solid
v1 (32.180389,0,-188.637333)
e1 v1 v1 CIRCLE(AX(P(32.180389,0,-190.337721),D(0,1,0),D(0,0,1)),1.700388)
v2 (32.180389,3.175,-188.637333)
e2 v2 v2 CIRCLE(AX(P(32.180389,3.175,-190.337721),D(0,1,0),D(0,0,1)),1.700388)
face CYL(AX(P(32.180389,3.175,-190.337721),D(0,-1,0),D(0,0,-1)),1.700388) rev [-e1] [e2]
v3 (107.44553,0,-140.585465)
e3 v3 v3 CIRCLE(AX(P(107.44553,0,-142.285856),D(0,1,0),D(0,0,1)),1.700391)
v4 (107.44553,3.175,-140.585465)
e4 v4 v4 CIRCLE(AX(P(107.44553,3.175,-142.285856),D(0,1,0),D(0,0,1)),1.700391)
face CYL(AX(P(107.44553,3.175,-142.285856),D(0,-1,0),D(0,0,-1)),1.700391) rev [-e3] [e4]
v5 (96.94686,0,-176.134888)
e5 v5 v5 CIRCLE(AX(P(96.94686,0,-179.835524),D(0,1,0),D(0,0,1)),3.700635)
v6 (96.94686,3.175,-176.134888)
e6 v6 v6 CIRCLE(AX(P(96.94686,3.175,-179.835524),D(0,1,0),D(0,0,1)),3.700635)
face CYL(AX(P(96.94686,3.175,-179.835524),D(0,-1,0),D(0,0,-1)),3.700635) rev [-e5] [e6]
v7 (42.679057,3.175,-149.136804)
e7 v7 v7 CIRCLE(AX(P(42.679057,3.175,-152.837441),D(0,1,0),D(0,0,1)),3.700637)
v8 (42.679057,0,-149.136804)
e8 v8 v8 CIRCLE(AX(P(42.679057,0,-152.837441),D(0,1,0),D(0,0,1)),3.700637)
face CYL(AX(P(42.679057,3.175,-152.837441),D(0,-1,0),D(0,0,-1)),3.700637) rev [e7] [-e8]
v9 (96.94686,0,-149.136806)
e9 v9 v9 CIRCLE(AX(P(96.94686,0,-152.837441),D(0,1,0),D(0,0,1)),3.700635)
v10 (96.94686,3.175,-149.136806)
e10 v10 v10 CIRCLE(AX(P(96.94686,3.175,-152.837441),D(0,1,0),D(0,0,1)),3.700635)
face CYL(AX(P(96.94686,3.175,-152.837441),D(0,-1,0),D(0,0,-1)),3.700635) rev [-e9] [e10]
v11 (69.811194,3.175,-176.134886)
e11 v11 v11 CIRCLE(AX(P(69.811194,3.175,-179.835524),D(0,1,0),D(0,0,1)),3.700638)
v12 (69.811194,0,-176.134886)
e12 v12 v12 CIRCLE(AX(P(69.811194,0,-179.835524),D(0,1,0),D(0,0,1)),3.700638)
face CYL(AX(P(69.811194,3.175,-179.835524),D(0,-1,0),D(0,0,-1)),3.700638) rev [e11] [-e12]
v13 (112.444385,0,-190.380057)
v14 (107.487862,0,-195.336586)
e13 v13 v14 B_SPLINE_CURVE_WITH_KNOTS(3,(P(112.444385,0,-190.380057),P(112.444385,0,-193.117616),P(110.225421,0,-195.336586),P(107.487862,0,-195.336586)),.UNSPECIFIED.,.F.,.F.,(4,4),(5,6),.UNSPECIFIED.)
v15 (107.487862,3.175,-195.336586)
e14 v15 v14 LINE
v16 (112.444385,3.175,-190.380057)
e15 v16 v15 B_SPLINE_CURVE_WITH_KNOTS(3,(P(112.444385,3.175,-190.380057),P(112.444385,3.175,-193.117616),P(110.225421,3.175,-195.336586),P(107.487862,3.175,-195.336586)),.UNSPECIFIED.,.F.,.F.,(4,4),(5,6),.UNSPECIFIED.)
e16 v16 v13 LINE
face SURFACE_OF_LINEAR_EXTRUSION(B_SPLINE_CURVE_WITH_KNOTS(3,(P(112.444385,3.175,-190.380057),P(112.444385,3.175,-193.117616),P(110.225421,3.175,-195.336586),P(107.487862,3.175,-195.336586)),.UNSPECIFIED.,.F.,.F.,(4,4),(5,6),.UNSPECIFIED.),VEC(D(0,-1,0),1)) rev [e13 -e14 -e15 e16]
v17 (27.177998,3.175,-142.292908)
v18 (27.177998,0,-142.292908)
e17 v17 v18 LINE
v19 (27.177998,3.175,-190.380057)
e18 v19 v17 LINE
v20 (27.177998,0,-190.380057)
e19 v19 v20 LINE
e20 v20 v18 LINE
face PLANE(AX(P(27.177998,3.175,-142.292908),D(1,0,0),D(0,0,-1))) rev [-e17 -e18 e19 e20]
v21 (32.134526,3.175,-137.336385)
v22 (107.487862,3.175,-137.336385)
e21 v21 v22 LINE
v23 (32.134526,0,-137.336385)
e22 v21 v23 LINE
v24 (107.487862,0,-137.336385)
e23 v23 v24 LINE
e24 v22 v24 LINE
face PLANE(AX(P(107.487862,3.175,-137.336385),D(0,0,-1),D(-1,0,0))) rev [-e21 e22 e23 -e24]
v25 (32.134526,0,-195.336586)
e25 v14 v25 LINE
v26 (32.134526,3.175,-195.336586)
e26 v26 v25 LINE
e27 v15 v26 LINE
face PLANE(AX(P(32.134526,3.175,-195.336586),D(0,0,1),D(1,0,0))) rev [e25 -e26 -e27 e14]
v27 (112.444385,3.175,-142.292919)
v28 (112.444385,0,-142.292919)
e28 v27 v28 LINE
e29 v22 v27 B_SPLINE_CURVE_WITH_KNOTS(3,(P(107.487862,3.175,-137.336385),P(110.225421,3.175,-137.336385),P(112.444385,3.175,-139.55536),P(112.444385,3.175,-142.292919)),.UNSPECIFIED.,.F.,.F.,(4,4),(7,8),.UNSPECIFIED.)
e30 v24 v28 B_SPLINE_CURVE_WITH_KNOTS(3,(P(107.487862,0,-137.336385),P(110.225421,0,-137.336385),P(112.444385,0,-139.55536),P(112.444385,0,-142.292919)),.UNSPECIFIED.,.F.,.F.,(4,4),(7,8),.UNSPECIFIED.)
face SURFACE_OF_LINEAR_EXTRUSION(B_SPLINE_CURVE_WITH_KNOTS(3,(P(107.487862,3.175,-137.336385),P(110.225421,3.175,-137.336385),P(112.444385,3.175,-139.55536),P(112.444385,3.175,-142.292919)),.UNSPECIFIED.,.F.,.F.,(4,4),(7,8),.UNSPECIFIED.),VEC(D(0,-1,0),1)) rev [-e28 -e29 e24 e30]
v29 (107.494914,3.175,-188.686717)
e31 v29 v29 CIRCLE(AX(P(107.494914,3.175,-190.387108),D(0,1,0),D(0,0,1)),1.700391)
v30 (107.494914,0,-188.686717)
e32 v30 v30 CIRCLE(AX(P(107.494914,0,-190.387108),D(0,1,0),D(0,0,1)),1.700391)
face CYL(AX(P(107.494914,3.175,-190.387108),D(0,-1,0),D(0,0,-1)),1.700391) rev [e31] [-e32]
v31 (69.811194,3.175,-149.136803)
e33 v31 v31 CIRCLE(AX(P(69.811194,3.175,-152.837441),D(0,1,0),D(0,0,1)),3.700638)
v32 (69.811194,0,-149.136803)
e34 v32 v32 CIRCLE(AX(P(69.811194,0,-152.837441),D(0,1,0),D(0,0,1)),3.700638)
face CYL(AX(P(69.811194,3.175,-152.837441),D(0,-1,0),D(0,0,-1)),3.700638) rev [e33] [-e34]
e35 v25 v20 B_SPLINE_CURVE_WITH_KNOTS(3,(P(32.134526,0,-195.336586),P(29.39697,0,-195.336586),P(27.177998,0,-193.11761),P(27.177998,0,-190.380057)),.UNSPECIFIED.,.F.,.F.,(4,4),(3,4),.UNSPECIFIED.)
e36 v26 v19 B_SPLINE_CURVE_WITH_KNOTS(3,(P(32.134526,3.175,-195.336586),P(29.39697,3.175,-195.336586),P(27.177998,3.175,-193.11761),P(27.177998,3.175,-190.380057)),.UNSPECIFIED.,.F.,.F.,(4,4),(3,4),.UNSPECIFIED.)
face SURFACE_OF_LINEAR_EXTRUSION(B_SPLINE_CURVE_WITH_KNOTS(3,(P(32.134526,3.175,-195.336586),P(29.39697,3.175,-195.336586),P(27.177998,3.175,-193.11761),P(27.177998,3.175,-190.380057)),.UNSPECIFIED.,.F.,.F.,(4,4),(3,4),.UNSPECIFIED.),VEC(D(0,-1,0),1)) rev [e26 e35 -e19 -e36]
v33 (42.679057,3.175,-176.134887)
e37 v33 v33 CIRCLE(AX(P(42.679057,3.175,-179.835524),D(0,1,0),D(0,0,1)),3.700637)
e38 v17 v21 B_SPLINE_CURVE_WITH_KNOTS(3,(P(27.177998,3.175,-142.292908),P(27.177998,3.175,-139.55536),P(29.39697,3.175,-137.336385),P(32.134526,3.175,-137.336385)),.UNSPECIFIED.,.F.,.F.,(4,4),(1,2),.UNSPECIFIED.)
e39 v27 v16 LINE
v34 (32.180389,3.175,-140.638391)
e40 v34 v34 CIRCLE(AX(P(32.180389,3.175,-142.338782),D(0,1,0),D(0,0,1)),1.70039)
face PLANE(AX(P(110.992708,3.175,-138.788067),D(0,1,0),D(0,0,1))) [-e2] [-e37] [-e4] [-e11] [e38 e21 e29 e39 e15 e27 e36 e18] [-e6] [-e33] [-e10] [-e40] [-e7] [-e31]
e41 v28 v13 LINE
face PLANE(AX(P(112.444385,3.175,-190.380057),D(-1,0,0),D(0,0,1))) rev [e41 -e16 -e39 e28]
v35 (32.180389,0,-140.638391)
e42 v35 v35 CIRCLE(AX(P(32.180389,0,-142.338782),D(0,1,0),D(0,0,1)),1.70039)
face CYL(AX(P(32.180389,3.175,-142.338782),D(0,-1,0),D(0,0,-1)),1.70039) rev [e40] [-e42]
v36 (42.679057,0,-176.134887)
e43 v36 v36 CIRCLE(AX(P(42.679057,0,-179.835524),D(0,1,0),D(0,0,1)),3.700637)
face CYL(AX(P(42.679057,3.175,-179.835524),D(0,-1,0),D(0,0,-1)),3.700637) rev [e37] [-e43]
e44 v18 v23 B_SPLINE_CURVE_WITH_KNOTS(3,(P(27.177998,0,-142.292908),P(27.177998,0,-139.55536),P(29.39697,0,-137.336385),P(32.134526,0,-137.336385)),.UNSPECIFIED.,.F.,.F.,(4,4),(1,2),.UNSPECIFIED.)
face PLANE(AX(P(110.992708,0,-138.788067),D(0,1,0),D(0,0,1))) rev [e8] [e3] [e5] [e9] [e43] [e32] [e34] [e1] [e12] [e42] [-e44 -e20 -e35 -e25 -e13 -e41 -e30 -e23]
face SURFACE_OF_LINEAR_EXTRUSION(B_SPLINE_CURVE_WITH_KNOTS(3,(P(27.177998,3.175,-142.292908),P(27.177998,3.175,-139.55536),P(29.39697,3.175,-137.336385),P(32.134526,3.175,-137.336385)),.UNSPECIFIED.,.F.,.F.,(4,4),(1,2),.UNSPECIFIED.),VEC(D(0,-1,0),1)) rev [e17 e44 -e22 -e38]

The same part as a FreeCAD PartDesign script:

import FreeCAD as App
import Part
import Sketcher
Q = App.Units.Quantity

doc = App.newDocument("Part")
body = doc.addObject("PartDesign::Body", "Body")

sketch1 = doc.addObject("Sketcher::SketchObject", "Sketch")
body.addObject(sketch1)
sketch1.AttachmentSupport = (doc.XZ_Plane, [""])
sketch1.MapMode = "FlatFace"
sketch1.addGeometry(Part.LineSegment(App.Vector(32.134526, -137.336385, 0), App.Vector(107.487862, -137.336385, 0)), False)
sketch1.addGeometry(Part.BSplineCurve([App.Vector(112.444385, -142.292919, 0), App.Vector(112.444385, -139.55536, 0), App.Vector(110.225421, -137.336385, 0), App.Vector(107.487862, -137.336385, 0)], [4, 4], [7, 8], False, 3, [1, 1, 1, 1], False), False)
sketch1.addGeometry(Part.LineSegment(App.Vector(112.444385, -142.292919, 0), App.Vector(112.444385, -190.380057, 0)), False)
sketch1.addGeometry(Part.BSplineCurve([App.Vector(107.487862, -195.336586, 0), App.Vector(110.225421, -195.336586, 0), App.Vector(112.444385, -193.117616, 0), App.Vector(112.444385, -190.380057, 0)], [4, 4], [5, 6], False, 3, [1, 1, 1, 1], False), False)
sketch1.addGeometry(Part.LineSegment(App.Vector(107.487862, -195.336586, 0), App.Vector(32.134526, -195.336586, 0)), False)
sketch1.addGeometry(Part.BSplineCurve([App.Vector(27.177998, -190.380057, 0), App.Vector(27.177998, -193.11761, 0), App.Vector(29.39697, -195.336586, 0), App.Vector(32.134526, -195.336586, 0)], [4, 4], [3, 4], False, 3, [1, 1, 1, 1], False), False)
sketch1.addGeometry(Part.LineSegment(App.Vector(27.177998, -190.380057, 0), App.Vector(27.177998, -142.292908, 0)), False)
sketch1.addGeometry(Part.BSplineCurve([App.Vector(32.134526, -137.336385, 0), App.Vector(29.39697, -137.336385, 0), App.Vector(27.177998, -139.55536, 0), App.Vector(27.177998, -142.292908, 0)], [4, 4], [1, 2], False, 3, [1, 1, 1, 1], False), False)
sketch1.addGeometry(Part.Circle(App.Vector(107.44553, -142.285856, 0), App.Vector(0, 0, 1), 1.700391), False)
sketch1.addGeometry(Part.Circle(App.Vector(96.94686, -152.837441, 0), App.Vector(0, 0, 1), 3.700635), False)
sketch1.addGeometry(Part.Circle(App.Vector(69.811194, -152.837441, 0), App.Vector(0, 0, 1), 3.700638), False)
sketch1.addGeometry(Part.Circle(App.Vector(32.180389, -142.338782, 0), App.Vector(0, 0, 1), 1.70039), False)
sketch1.addGeometry(Part.Circle(App.Vector(42.679057, -152.837441, 0), App.Vector(0, 0, 1), 3.700637), False)
sketch1.addGeometry(Part.Circle(App.Vector(96.94686, -179.835524, 0), App.Vector(0, 0, 1), 3.700635), False)
sketch1.addGeometry(Part.Circle(App.Vector(107.494914, -190.387108, 0), App.Vector(0, 0, 1), 1.700391), False)
sketch1.addGeometry(Part.Circle(App.Vector(69.811194, -179.835524, 0), App.Vector(0, 0, 1), 3.700638), False)
sketch1.addGeometry(Part.Circle(App.Vector(42.679057, -179.835524, 0), App.Vector(0, 0, 1), 3.700637), False)
sketch1.addGeometry(Part.Circle(App.Vector(32.180389, -190.337721, 0), App.Vector(0, 0, 1), 1.700388), False)
sketch1.addConstraint(Sketcher.Constraint("Block", 1))
sketch1.addConstraint(Sketcher.Constraint("Block", 3))
sketch1.addConstraint(Sketcher.Constraint("Block", 5))
sketch1.addConstraint(Sketcher.Constraint("Block", 7))
sketch1.addConstraint(Sketcher.Constraint("Coincident", 0, 2, 1, 2))
sketch1.addConstraint(Sketcher.Constraint("Coincident", 1, 1, 2, 1))
sketch1.addConstraint(Sketcher.Constraint("Coincident", 2, 2, 3, 2))
sketch1.addConstraint(Sketcher.Constraint("Coincident", 3, 1, 4, 1))
sketch1.addConstraint(Sketcher.Constraint("Coincident", 4, 2, 5, 2))
sketch1.addConstraint(Sketcher.Constraint("Coincident", 5, 1, 6, 1))
sketch1.addConstraint(Sketcher.Constraint("Coincident", 6, 2, 7, 2))
sketch1.addConstraint(Sketcher.Constraint("Coincident", 7, 1, 0, 1))
sketch1.addConstraint(Sketcher.Constraint("Equal", 8, 11))
sketch1.addConstraint(Sketcher.Constraint("Equal", 10, 12))
sketch1.addConstraint(Sketcher.Constraint("Equal", 12, 13))
sketch1.addConstraint(Sketcher.Constraint("Equal", 11, 14))
sketch1.addConstraint(Sketcher.Constraint("Equal", 12, 15))
sketch1.addConstraint(Sketcher.Constraint("Equal", 15, 16))
sketch1.addConstraint(Sketcher.Constraint("Horizontal", 9, 3, 10, 3))
sketch1.addConstraint(Sketcher.Constraint("Horizontal", 10, 3, 12, 3))
sketch1.addConstraint(Sketcher.Constraint("Horizontal", 13, 3, 15, 3))
sketch1.addConstraint(Sketcher.Constraint("Horizontal", 15, 3, 16, 3))
sketch1.addConstraint(Sketcher.Constraint("Vertical", 9, 3, 13, 3))
sketch1.addConstraint(Sketcher.Constraint("Vertical", 10, 3, 15, 3))
sketch1.addConstraint(Sketcher.Constraint("Vertical", 12, 3, 16, 3))
sketch1.addConstraint(Sketcher.Constraint("Vertical", 11, 3, 17, 3))
sketch1.addConstraint(Sketcher.Constraint("Diameter", 9, Q("7.401271 mm")))
sketch1.addConstraint(Sketcher.Constraint("Diameter", 11, Q("3.40078 mm")))
sketch1.addConstraint(Sketcher.Constraint("Diameter", 13, Q("7.401271 mm")))
sketch1.addConstraint(Sketcher.Constraint("DistanceX", 9, 3, 0, 2, Q("0.4150001 in")))
sketch1.addConstraint(Sketcher.Constraint("Diameter", 17, Q("3.400776 mm")))
sketch1.addConstraint(Sketcher.Constraint("DistanceY", 2, 2, 8, 3, Q("48.0942 mm")))
sketch1.addConstraint(Sketcher.Constraint("DistanceX", -1, 1, 8, 3, Q("107.44553 mm")))
sketch1.addConstraint(Sketcher.Constraint("DistanceY", 9, 3, -1, 1, Q("152.837441 mm")))
sketch1.addConstraint(Sketcher.Constraint("DistanceX", -1, 1, 11, 3, Q("32.180389 mm")))
sketch1.addConstraint(Sketcher.Constraint("DistanceY", 11, 3, -1, 1, Q("142.338782 mm")))
sketch1.addConstraint(Sketcher.Constraint("DistanceY", 14, 3, -1, 1, Q("190.387108 mm")))
sketch1.addConstraint(Sketcher.Constraint("DistanceY", 17, 3, -1, 1, Q("190.337721 mm")))
sketch1.addConstraint(Sketcher.Constraint("DistanceX", 10, 3, 14, 3, Q("37.683719 mm")))
sketch1.addConstraint(Sketcher.Constraint("DistanceY", 13, 3, 0, 2, Q("42.499139 mm")))
sketch1.addConstraint(Sketcher.Constraint("DistanceX", 0, 2, 14, 3, Q("0.007052 mm")))
sketch1.addConstraint(Sketcher.Constraint("DistanceX", 4, 2, 16, 3, Q("10.54453 mm")))
pad1 = doc.addObject("PartDesign::Pad", "Pad")
body.addObject(pad1)
pad1.Profile = sketch1
pad1.Length = Q("0.125 in")
pad1.Reversed = True

doc.recompute()
